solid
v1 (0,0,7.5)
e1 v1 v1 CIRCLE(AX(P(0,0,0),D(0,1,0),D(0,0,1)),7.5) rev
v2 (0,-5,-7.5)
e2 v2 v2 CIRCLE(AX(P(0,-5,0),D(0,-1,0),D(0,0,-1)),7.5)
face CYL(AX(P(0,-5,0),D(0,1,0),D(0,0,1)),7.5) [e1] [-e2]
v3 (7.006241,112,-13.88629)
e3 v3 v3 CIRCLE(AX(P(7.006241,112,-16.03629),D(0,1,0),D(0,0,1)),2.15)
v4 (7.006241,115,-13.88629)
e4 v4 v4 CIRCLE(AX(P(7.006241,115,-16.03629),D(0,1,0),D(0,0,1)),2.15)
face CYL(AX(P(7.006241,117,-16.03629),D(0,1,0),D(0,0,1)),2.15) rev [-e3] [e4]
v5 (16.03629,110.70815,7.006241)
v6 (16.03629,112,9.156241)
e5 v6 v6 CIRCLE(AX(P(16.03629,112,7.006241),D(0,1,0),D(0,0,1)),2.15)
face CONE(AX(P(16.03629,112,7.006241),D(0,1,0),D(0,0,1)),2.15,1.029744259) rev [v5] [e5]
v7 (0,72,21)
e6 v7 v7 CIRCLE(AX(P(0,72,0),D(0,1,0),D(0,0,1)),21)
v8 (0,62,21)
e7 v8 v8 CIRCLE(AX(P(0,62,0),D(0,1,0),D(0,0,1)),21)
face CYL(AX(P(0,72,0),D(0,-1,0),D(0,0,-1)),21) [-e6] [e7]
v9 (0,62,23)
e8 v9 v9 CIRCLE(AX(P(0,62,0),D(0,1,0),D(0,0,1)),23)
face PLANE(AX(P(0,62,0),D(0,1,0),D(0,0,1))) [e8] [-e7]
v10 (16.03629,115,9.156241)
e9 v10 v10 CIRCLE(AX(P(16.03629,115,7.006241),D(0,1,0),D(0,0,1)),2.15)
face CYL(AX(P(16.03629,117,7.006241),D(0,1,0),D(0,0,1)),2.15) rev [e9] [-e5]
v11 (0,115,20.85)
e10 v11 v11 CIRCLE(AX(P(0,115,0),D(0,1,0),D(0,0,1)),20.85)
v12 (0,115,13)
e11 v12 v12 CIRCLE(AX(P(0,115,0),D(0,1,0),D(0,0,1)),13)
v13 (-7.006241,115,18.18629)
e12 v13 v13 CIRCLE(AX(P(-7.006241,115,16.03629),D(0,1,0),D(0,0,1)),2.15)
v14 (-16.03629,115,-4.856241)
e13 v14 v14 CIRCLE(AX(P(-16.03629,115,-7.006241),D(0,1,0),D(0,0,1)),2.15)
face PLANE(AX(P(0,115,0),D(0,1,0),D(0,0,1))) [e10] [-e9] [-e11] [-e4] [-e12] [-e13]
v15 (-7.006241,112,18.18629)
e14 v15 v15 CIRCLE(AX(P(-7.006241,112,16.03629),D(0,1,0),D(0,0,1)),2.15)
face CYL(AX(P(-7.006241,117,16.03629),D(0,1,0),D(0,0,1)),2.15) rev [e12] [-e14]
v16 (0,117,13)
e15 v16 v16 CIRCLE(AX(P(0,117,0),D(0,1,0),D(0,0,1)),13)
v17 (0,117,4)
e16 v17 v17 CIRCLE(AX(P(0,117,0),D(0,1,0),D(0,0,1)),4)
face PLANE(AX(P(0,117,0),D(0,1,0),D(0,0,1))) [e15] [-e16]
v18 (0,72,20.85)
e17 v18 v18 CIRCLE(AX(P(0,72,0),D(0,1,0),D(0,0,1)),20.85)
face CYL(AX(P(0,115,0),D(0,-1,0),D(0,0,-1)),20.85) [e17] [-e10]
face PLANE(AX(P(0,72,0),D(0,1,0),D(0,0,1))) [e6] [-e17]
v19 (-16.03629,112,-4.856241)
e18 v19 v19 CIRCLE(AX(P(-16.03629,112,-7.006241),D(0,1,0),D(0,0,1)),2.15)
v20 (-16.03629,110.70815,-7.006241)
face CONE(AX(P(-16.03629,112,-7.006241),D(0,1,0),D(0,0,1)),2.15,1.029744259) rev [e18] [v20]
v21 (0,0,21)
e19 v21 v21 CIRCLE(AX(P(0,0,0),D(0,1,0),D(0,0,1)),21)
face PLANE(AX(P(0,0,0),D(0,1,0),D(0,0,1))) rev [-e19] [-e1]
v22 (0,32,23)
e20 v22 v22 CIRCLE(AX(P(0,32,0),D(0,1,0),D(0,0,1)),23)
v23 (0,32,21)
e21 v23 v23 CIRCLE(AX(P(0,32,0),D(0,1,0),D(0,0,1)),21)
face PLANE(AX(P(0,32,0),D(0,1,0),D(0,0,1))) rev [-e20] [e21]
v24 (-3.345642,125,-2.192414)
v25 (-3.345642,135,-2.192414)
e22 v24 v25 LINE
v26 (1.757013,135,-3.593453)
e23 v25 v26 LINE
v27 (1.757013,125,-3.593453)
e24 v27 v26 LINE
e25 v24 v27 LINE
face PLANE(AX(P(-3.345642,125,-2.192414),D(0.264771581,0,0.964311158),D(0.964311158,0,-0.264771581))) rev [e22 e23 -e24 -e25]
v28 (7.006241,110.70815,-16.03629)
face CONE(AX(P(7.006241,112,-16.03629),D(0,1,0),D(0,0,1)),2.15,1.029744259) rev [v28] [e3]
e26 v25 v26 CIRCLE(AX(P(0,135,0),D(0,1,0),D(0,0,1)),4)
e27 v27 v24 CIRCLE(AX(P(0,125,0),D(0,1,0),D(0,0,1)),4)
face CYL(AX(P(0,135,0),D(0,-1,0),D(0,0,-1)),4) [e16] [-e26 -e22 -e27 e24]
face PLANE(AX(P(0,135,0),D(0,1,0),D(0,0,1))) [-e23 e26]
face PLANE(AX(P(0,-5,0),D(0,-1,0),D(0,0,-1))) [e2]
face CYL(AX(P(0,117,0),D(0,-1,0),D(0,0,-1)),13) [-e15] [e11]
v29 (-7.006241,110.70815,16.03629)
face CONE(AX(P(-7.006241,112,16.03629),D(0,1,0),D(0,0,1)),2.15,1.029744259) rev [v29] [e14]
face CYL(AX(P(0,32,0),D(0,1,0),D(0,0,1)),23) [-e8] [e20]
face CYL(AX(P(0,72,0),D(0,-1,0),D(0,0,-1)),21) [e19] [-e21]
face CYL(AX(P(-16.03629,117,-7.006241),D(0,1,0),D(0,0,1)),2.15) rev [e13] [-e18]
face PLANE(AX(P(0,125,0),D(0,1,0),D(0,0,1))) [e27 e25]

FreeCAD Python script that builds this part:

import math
import FreeCAD as App
import Part
import Sketcher

V = App.Vector
Q = App.Units.Quantity

doc = App.newDocument("Part")
body = doc.addObject("PartDesign::Body", "Body")

sketch1 = body.newObject("Sketcher::SketchObject", "Sketch")
sketch1.AttachmentSupport = (doc.getObject("XZ_Plane"), [""])
sketch1.MapMode = "FlatFace"
sketch1.addGeometry(Part.Circle(V(0, 0, 0), V(0, 0, 1), 21), False)
sketch1.addConstraint([
    Sketcher.Constraint("Coincident", 0, 3, -1, 1),
    Sketcher.Constraint("Diameter", 0, Q("42 mm")),
])
pad1 = body.newObject("PartDesign::Pad", "Pad")
pad1.Profile = sketch1
pad1.Length = 72
pad1.Reversed = True

sketch2 = body.newObject("Sketcher::SketchObject", "Sketch001")
sketch2.AttachmentSupport = (doc.getObject("XZ_Plane"), [""])
sketch2.MapMode = "FlatFace"
sketch2.AttachmentOffset = App.Placement(V(0, 0, -62), App.Rotation())
sketch2.addGeometry([
    Part.Circle(V(0, 0, 0), V(0, 0, 1), 23),
    Part.Circle(V(0, 0, 0), V(0, 0, 1), 21),
], False)
sketch2.addConstraint([
    Sketcher.Constraint("Coincident", 0, 3, -1, 1),
    Sketcher.Constraint("Coincident", 1, 3, -1, 1),
    Sketcher.Constraint("Diameter", 0, Q("46 mm")),
    Sketcher.Constraint("Diameter", 1, Q("42 mm")),
])
pad2 = body.newObject("PartDesign::Pad", "Pad001")
pad2.Profile = sketch2
pad2.Length = 30

sketch3 = body.newObject("Sketcher::SketchObject", "Sketch002")
sketch3.AttachmentSupport = (doc.getObject("XZ_Plane"), [""])
sketch3.MapMode = "FlatFace"
sketch3.AttachmentOffset = App.Placement(V(0, 0, -72), App.Rotation())
sketch3.addGeometry(Part.Circle(V(0, 0, 0), V(0, 0, 1), 21), False)
sketch3.addConstraint([
    Sketcher.Constraint("Coincident", 0, 3, -1, 1),
    Sketcher.Constraint("Diameter", 0, Q("41.7 mm")),
])
pad3 = body.newObject("PartDesign::Pad", "Pad002")
pad3.Profile = sketch3
pad3.Length = 43
pad3.Reversed = True

sketch4 = body.newObject("Sketcher::SketchObject", "Sketch003")
sketch4.AttachmentSupport = (doc.getObject("XZ_Plane"), [""])
sketch4.MapMode = "FlatFace"
sketch4.AttachmentOffset = App.Placement(V(0, 0, -115), App.Rotation())
sketch4.addGeometry(Part.Circle(V(0, 0, 0), V(0, 0, 1), 13), False)
sketch4.addConstraint([
    Sketcher.Constraint("Coincident", 0, 3, -1, 1),
    Sketcher.Constraint("Diameter", 0, Q("26 mm")),
])
pad4 = body.newObject("PartDesign::Pad", "Pad003")
pad4.Profile = sketch4
pad4.Length = 2
pad4.Reversed = True

sketch5 = body.newObject("Sketcher::SketchObject", "Sketch004")
sketch5.AttachmentSupport = (doc.getObject("XZ_Plane"), [""])
sketch5.MapMode = "FlatFace"
sketch5.AttachmentOffset = App.Placement(V(0, 0, -117), App.Rotation())
sketch5.addGeometry(Part.Circle(V(0, 0, 0), V(0, 0, 1), 4), False)
sketch5.addConstraint([
    Sketcher.Constraint("Coincident", 0, 3, -1, 1),
    Sketcher.Constraint("Diameter", 0, Q("8 mm")),
])
pad5 = body.newObject("PartDesign::Pad", "Pad004")
pad5.Profile = sketch5
pad5.Length = 18
pad5.Reversed = True

sketch6 = body.newObject("Sketcher::SketchObject", "Sketch005")
sketch6.AttachmentSupport = (doc.getObject("XZ_Plane"), [""])
sketch6.MapMode = "FlatFace"
sketch6.addGeometry(Part.Circle(V(0, 0, 0), V(0, 0, 1), 8), False)
sketch6.addConstraint([
    Sketcher.Constraint("Coincident", 0, 3, -1, 1),
    Sketcher.Constraint("Diameter", 0, Q("15 mm")),
])
pad6 = body.newObject("PartDesign::Pad", "Pad005")
pad6.Profile = sketch6
pad6.Length = 5

sketch7 = body.newObject("Sketcher::SketchObject", "Sketch006")
sketch7.AttachmentSupport = (doc.getObject("YZ_Plane"), [""])
sketch7.MapMode = "FlatFace"
sketch7.AttachmentOffset = App.Placement(V(0, 0, -16.03629), App.Rotation())
sketch7.addGeometry([
    Part.LineSegment(V(110.7, -7, 0), V(117, -7, 0)),
    Part.LineSegment(V(117, -7, 0), V(117, -4.3, 0)),
    Part.LineSegment(V(117, -4.3, 0), V(116.4, -4.9, 0)),
    Part.LineSegment(V(116.4, -4.9, 0), V(112, -4.9, 0)),
    Part.LineSegment(V(112, -4.9, 0), V(110.7, -7, 0)),
], False)
sketch7.addGeometry(Part.LineSegment(V(117, -7, 0), V(110.7, -7, 0)), True)
sketch7.addConstraint([
    Sketcher.Constraint("Coincident", 0, 2, 1, 1),
    Sketcher.Constraint("Coincident", 1, 2, 2, 1),
    Sketcher.Constraint("Coincident", 2, 2, 3, 1),
    Sketcher.Constraint("Coincident", 3, 2, 4, 1),
    Sketcher.Constraint("Coincident", 4, 2, 0, 1),
    Sketcher.Constraint("Horizontal", 0),
    Sketcher.Constraint("Vertical", 1),
    Sketcher.Constraint("Horizontal", 3),
    Sketcher.Constraint("Horizontal", 5),
    Sketcher.Constraint("Coincident", 5, 1, 0, 2),
    Sketcher.Constraint("Equal", 0, 5),
    Sketcher.Constraint("Angle", 2, Q("-135 deg")),
    Sketcher.Constraint("Angle", 4, Q("-121 deg")),
    Sketcher.Constraint("DistanceX", 3, 2, 3, 1, Q("4.4 mm")),
    Sketcher.Constraint("DistanceX", -1, 1, 0, 2, Q("117 mm")),
    Sketcher.Constraint("DistanceX", -1, 1, 3, 2, Q("112 mm")),
    Sketcher.Constraint("DistanceY", 1, 1, 1, 2, Q("2.75 mm")),
    Sketcher.Constraint("DistanceY", 0, 2, -1, 1, Q("7.006241 mm")),
])
groove = body.newObject("PartDesign::Groove", "Groove")
groove.Profile = sketch7
groove.ReferenceAxis = (sketch7, ["Axis0"])
groove.Angle = 360
doc.recompute()

polarpattern = body.newObject("PartDesign::PolarPattern", "PolarPattern")
polarpattern.Originals = [groove]
polarpattern.Axis = (doc.getObject("Y_Axis"), [""])
polarpattern.Angle = 360
polarpattern.Occurrences = 4
body.Tip = polarpattern

sketch8 = body.newObject("Sketcher::SketchObject", "Sketch007")
sketch8.AttachmentSupport = (doc.getObject("XZ_Plane"), [""])
sketch8.MapMode = "FlatFace"
sketch8.AttachmentOffset = App.Placement(V(0, 0, -135), App.Rotation())
sketch8.addGeometry([
    Part.LineSegment(V(-3.3, -2.2, 0), V(1.8, -3.6, 0)),
    Part.ArcOfCircle(Part.Circle(V(0, 0, 0), V(0, 0, 1), 4), math.radians(-147), math.radians(-64)),
], False)
sketch8.addConstraint([
    Sketcher.Constraint("Coincident", 0, 1, 1, 1),
    Sketcher.Constraint("Coincident", 1, 2, 0, 2),
    Sketcher.Constraint("Coincident", 1, 3, -1, 1),
    Sketcher.Constraint("Radius", 1, Q("4 mm")),
    Sketcher.Constraint("DistanceY", 1, 2, 0, 1, Q("1.40104 mm")),
    Sketcher.Constraint("Distance", 0, Q("5.291503 mm")),
])
pocket1 = body.newObject("PartDesign::Pocket", "Pocket")
pocket1.Profile = sketch8
pocket1.Length = 10
pocket1.Reversed = True

doc.recompute()
